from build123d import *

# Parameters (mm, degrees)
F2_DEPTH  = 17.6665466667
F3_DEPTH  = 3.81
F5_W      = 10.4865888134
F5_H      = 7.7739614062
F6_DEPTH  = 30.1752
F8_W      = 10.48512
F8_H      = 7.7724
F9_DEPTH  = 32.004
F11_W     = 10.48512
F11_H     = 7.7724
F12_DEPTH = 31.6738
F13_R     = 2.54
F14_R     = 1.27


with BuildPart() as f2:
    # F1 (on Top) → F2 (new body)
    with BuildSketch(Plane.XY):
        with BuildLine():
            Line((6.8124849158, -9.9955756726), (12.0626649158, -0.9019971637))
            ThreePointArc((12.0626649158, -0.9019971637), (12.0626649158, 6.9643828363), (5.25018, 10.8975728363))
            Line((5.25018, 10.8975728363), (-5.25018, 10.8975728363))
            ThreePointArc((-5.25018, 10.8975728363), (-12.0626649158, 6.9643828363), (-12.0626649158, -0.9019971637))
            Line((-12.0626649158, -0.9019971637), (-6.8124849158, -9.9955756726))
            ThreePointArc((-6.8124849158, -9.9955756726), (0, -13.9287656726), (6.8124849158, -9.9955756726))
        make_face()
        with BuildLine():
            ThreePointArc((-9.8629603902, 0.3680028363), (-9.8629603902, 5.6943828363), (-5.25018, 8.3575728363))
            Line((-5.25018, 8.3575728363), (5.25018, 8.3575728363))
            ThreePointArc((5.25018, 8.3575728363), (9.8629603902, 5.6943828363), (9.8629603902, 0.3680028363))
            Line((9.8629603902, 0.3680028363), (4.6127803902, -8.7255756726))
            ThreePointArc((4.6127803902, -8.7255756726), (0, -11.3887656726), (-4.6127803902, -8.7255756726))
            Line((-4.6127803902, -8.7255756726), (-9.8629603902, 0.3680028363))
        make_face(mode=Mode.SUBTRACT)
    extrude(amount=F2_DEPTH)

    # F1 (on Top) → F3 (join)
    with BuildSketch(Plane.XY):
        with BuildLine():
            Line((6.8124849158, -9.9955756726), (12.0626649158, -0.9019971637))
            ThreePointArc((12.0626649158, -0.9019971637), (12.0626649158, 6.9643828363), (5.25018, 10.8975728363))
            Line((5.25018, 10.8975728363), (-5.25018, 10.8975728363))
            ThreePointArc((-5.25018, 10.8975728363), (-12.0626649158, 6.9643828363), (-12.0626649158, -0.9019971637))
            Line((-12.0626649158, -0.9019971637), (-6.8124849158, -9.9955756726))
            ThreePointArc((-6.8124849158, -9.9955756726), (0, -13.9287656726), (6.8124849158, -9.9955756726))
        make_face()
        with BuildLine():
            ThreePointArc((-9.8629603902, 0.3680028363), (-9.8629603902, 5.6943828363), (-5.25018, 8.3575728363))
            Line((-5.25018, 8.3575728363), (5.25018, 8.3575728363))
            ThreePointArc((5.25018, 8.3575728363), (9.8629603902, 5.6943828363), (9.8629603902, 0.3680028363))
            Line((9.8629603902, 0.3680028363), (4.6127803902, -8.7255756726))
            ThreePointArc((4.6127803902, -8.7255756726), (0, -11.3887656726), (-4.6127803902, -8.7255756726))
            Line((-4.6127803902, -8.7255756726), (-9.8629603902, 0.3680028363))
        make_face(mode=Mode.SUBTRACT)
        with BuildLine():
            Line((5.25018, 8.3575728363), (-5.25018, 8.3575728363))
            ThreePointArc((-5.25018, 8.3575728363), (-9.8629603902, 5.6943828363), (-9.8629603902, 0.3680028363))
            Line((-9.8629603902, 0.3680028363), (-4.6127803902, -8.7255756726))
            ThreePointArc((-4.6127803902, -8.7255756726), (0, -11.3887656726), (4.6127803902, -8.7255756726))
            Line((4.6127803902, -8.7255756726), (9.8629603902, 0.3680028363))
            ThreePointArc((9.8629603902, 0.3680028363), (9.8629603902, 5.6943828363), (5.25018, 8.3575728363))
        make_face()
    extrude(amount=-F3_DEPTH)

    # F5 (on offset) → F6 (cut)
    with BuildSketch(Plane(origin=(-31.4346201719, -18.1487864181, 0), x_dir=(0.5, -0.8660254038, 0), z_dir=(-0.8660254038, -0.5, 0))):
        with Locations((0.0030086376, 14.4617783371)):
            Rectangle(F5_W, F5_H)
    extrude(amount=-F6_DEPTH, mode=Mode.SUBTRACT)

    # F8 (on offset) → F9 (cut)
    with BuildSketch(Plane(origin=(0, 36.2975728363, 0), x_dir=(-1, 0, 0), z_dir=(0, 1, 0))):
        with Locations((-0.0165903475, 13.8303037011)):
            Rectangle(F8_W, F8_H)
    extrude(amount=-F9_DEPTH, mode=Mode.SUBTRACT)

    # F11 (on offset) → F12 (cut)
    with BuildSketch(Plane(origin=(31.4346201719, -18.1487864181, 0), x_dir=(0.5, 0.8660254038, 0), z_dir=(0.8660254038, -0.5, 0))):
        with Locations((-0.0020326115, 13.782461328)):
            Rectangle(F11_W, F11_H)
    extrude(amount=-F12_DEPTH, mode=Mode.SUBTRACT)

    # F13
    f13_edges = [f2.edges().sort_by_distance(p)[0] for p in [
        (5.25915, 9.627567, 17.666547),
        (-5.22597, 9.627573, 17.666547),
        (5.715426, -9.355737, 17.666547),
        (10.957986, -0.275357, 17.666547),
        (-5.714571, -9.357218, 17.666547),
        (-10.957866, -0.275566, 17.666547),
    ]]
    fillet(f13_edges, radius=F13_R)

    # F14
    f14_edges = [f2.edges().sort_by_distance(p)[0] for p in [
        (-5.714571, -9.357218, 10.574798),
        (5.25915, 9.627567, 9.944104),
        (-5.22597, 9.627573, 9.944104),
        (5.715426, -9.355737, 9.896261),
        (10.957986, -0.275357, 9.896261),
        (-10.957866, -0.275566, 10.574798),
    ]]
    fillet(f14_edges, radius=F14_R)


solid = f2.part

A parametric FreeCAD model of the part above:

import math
import FreeCAD as App
import Part
import Sketcher

V = App.Vector
Q = App.Units.Quantity


def edges_at(feature, points):
    """Names of the edges that pass closest to the given points."""
    edges = feature.Shape.Edges
    near = lambda p: min(range(len(edges)), key=lambda i: edges[i].distToShape(Part.Vertex(*p))[0])
    return sorted({f"Edge{near(p) + 1}" for p in points})


def add_polygon(sketch, points):
    """Adds a closed chain of lines whose ends are joined by coincident constraints."""
    first, n = sketch.GeometryCount, len(points)
    for a, b in zip(points, points[1:] + points[:1]):
        sketch.addGeometry(Part.LineSegment(App.Vector(*a, 0), App.Vector(*b, 0)), False)
    for i in range(n):
        sketch.addConstraint(Sketcher.Constraint("Coincident", first + i, 2, first + (i + 1) % n, 1))

doc = App.newDocument("Part")
body = doc.addObject("PartDesign::Body", "Body")

sketch1 = body.newObject("Sketcher::SketchObject", "Sketch")
sketch1.AttachmentSupport = (doc.getObject("XY_Plane"), [""])
sketch1.MapMode = "FlatFace"
sketch1.addGeometry([
    Part.LineSegment(V(7, -10, 0), V(12, -1, 0)),
    Part.ArcOfCircle(Part.Circle(V(5, 3, 0), V(0, 0, 1), 8), math.radians(-30), math.radians(90)),
    Part.LineSegment(V(5, 11, 0), V(-5, 11, 0)),
    Part.ArcOfCircle(Part.Circle(V(-5, 3, 0), V(0, 0, 1), 8), math.radians(90), math.radians(210)),
    Part.LineSegment(V(-12, -1, 0), V(-7, -10, 0)),
    Part.ArcOfCircle(Part.Circle(V(0, -6, 0), V(0, 0, 1), 8), math.radians(-150), math.radians(-30)),
    Part.LineSegment(V(-5, -9, 0), V(-10, 0, 0)),
    Part.ArcOfCircle(Part.Circle(V(-5, 3, 0), V(0, 0, 1), 5), math.radians(90), math.radians(210)),
    Part.LineSegment(V(-5, 8, 0), V(5, 8, 0)),
    Part.ArcOfCircle(Part.Circle(V(5, 3, 0), V(0, 0, 1), 5), math.radians(-30), math.radians(90)),
    Part.LineSegment(V(10, 0, 0), V(5, -9, 0)),
    Part.ArcOfCircle(Part.Circle(V(0, -6, 0), V(0, 0, 1), 5), math.radians(-150), math.radians(-30)),
], False)
sketch1.addConstraint([
    Sketcher.Constraint("Tangent", 0, 2, 1, 1),
    Sketcher.Constraint("Tangent", 1, 2, 2, 1),
    Sketcher.Constraint("Tangent", 2, 2, 3, 1),
    Sketcher.Constraint("Tangent", 3, 2, 4, 1),
    Sketcher.Constraint("Tangent", 4, 2, 5, 1),
    Sketcher.Constraint("Tangent", 5, 2, 0, 1),
    Sketcher.Constraint("Tangent", 6, 2, 7, 2),
    Sketcher.Constraint("Tangent", 7, 1, 8, 1),
    Sketcher.Constraint("Tangent", 8, 2, 9, 2),
    Sketcher.Constraint("Tangent", 9, 1, 10, 1),
    Sketcher.Constraint("Tangent", 10, 2, 11, 2),
    Sketcher.Constraint("Tangent", 11, 1, 6, 1),
    Sketcher.Constraint("Horizontal", 2),
    Sketcher.Constraint("Horizontal", 8),
    Sketcher.Constraint("Coincident", 7, 3, 3, 3),
    Sketcher.Constraint("Coincident", 9, 3, 1, 3),
    Sketcher.Constraint("Coincident", 11, 3, 5, 3),
    Sketcher.Constraint("Equal", 1, 3),
    Sketcher.Constraint("Equal", 3, 5),
    Sketcher.Constraint("Equal", 9, 11),
    Sketcher.Constraint("Symmetric", 0, 2, 3, 2, -2),
    Sketcher.Constraint("Angle", 0, Q("60 deg")),
    Sketcher.Constraint("Radius", 1, Q("0.3097 in")),
    Sketcher.Constraint("Radius", 7, Q("0.2097 in")),
    Sketcher.Constraint("DistanceX", 2, 2, 2, 1, Q("0.4134 in")),
    Sketcher.Constraint("DistanceY", -1, 1, 1, 3, 3.031193),
])
pad1 = body.newObject("PartDesign::Pad", "Pad")
pad1.Profile = sketch1
pad1.Length = 17.666547

sketch2 = body.newObject("Sketcher::SketchObject", "Sketch001")
sketch2.AttachmentSupport = (doc.getObject("XY_Plane"), [""])
sketch2.MapMode = "FlatFace"
sketch2.addGeometry([
    Part.LineSegment(V(7, -10, 0), V(12, -1, 0)),
    Part.ArcOfCircle(Part.Circle(V(5, 3, 0), V(0, 0, 1), 8), math.radians(-30), math.radians(90)),
    Part.LineSegment(V(5, 11, 0), V(-5, 11, 0)),
    Part.ArcOfCircle(Part.Circle(V(-5, 3, 0), V(0, 0, 1), 8), math.radians(90), math.radians(210)),
    Part.LineSegment(V(-12, -1, 0), V(-7, -10, 0)),
    Part.ArcOfCircle(Part.Circle(V(0, -6, 0), V(0, 0, 1), 8), math.radians(-150), math.radians(-30)),
], False)
sketch2.addConstraint([
    Sketcher.Constraint("Tangent", 0, 2, 1, 1),
    Sketcher.Constraint("Tangent", 1, 2, 2, 1),
    Sketcher.Constraint("Tangent", 2, 2, 3, 1),
    Sketcher.Constraint("Tangent", 3, 2, 4, 1),
    Sketcher.Constraint("Tangent", 4, 2, 5, 1),
    Sketcher.Constraint("Tangent", 5, 2, 0, 1),
    Sketcher.Constraint("Horizontal", 2),
    Sketcher.Constraint("Equal", 1, 3),
    Sketcher.Constraint("Equal", 3, 5),
    Sketcher.Constraint("Symmetric", 0, 2, 3, 2, -2),
    Sketcher.Constraint("Angle", 0, Q("60 deg")),
    Sketcher.Constraint("Radius", 1, Q("0.3097 in")),
    Sketcher.Constraint("DistanceX", 2, 2, 2, 1, Q("0.4134 in")),
    Sketcher.Constraint("DistanceY", -1, 1, 1, 3, 3.031193),
])
pad2 = body.newObject("PartDesign::Pad", "Pad001")
pad2.Profile = sketch2
pad2.Length = Q("0.15 in")
pad2.Reversed = True

sketch3 = body.newObject("Sketcher::SketchObject", "Sketch002")
sketch3.Placement = App.Placement(V(-31.43462, -18.148786, 0), App.Rotation(V(0.5, -0.866025404, 0), V(0, 0, 1), V(-0.866025404, -0.5, 0), "ZXY"))
add_polygon(sketch3, [(-5, 18), (-5, 11), (5, 11), (5, 18)])
sketch3.addConstraint([
    Sketcher.Constraint("Vertical", 0),
    Sketcher.Constraint("Horizontal", 1),
    Sketcher.Constraint("Vertical", 2),
    Sketcher.Constraint("Horizontal", 3),
    Sketcher.Constraint("DistanceX", 1, 1, 1, 2, 10.486589),
    Sketcher.Constraint("DistanceY", 0, 2, 0, 1, 7.773961),
    Sketcher.Constraint("DistanceY", -1, 1, 2, 2, 18.348759),
    Sketcher.Constraint("DistanceX", 0, 2, -1, 1, 5.240286),
])
pocket1 = body.newObject("PartDesign::Pocket", "Pocket")
pocket1.Profile = sketch3
pocket1.Length = Q("1.188 in")

sketch4 = body.newObject("Sketcher::SketchObject", "Sketch003")
sketch4.AttachmentSupport = (doc.getObject("XZ_Plane"), [""])
sketch4.MapMode = "FlatFace"
sketch4.AttachmentOffset = App.Placement(V(0, 0, -36.297573), App.Rotation())
add_polygon(sketch4, [(5, 18), (5, 10), (-5, 10), (-5, 18)])
sketch4.addConstraint([
    Sketcher.Constraint("Vertical", 0),
    Sketcher.Constraint("Horizontal", 1),
    Sketcher.Constraint("Vertical", 2),
    Sketcher.Constraint("Horizontal", 3),
    Sketcher.Constraint("DistanceY", 0, 2, 0, 1, Q("0.306 in")),
    Sketcher.Constraint("DistanceX", 1, 2, 1, 1, Q("0.4128 in")),
    Sketcher.Constraint("DistanceY", -1, 1, 0, 2, Q("0.3915001 in")),
    Sketcher.Constraint("DistanceX", -1, 1, 0, 2, 5.25915),
])
pocket2 = body.newObject("PartDesign::Pocket", "Pocket001")
pocket2.Profile = sketch4
pocket2.Length = Q("1.26 in")
pocket2.Reversed = True

sketch5 = body.newObject("Sketcher::SketchObject", "Sketch004")
sketch5.Placement = App.Placement(V(31.43462, -18.148786, 0), App.Rotation(V(0.5, 0.866025404, 0), V(0, 0, 1), V(0.866025404, -0.5, 0), "ZXY"))
add_polygon(sketch5, [(-5, 18), (-5, 10), (5, 10), (5, 18)])
sketch5.addConstraint([
    Sketcher.Constraint("Vertical", 0),
    Sketcher.Constraint("Horizontal", 1),
    Sketcher.Constraint("Vertical", 2),
    Sketcher.Constraint("Horizontal", 3),
    Sketcher.Constraint("DistanceY", 0, 2, 0, 1, Q("0.306 in")),
    Sketcher.Constraint("DistanceX", 1, 1, 1, 2, Q("0.4128 in")),
    Sketcher.Constraint("DistanceY", -1, 1, 0, 2, 9.896261),
    Sketcher.Constraint("DistanceX", 0, 2, -1, 1, 5.244593),
])
pocket3 = body.newObject("PartDesign::Pocket", "Pocket002")
pocket3.Profile = sketch5
pocket3.Length = Q("1.247 in")
doc.recompute()

fillet = body.newObject("PartDesign::Fillet", "Fillet")
fillet.Base = (pocket3, edges_at(pocket3, [
    (5.259, 9.628, 17.667),
    (-5.226, 9.628, 17.667),
    (5.715, -9.356, 17.667),
    (10.958, -0.275, 17.667),
    (-5.715, -9.357, 17.667),
    (-10.958, -0.276, 17.667),
]))
fillet.Radius = Q("0.1 in")
doc.recompute()

fillet2 = body.newObject("PartDesign::Fillet", "Fillet001")
fillet2.Base = (fillet, edges_at(fillet, [
    (-5.715, -9.357, 10.575),
    (5.259, 9.628, 9.944),
    (-5.226, 9.628, 9.944),
    (5.715, -9.356, 9.896),
    (10.958, -0.275, 9.896),
    (-10.958, -0.276, 10.575),
]))
fillet2.Radius = Q("0.05 in")

doc.recompute()
